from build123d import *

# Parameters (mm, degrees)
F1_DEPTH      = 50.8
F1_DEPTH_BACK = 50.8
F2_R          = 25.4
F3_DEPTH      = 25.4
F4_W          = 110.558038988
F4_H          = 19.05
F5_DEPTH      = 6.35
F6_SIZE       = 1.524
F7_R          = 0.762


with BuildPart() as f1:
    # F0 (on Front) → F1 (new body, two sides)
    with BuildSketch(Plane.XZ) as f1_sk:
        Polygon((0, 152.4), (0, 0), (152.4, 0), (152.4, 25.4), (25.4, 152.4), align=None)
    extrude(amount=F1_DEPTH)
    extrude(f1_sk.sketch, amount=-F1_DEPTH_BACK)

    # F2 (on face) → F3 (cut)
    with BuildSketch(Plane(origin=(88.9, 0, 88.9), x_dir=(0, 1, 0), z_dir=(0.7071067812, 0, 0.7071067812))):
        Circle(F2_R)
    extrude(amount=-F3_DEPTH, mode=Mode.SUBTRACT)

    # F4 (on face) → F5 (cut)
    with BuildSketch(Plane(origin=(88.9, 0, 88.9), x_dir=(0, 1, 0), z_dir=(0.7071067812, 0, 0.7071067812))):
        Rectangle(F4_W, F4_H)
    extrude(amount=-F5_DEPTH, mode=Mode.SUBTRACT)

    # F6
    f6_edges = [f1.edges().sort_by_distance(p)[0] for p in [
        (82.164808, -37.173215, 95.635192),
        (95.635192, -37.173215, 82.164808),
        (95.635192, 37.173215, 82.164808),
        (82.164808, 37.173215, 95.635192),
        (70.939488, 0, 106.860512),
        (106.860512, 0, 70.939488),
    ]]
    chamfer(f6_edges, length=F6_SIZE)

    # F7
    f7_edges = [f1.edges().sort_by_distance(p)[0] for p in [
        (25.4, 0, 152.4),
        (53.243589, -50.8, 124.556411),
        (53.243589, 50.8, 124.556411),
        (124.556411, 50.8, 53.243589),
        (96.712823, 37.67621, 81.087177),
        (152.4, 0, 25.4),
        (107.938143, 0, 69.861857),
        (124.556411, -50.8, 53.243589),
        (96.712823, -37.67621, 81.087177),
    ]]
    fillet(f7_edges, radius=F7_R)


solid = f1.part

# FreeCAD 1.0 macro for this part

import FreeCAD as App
import Part
import Sketcher

V = App.Vector
Q = App.Units.Quantity


def edges_at(feature, points):
    """Names of the edges that pass closest to the given points."""
    edges = feature.Shape.Edges
    near = lambda p: min(range(len(edges)), key=lambda i: edges[i].distToShape(Part.Vertex(*p))[0])
    return sorted({f"Edge{near(p) + 1}" for p in points})


def add_polygon(sketch, points):
    """Adds a closed chain of lines whose ends are joined by coincident constraints."""
    first, n = sketch.GeometryCount, len(points)
    for a, b in zip(points, points[1:] + points[:1]):
        sketch.addGeometry(Part.LineSegment(App.Vector(*a, 0), App.Vector(*b, 0)), False)
    for i in range(n):
        sketch.addConstraint(Sketcher.Constraint("Coincident", first + i, 2, first + (i + 1) % n, 1))

doc = App.newDocument("Part")
params = doc.addObject("Spreadsheet::Sheet", "Params")
for row, (alias, value) in enumerate([
    ("sketch1_width", "6 in"),
    ("sketch1_width2", "1 in"),
    ("pad1_length", "2 in"),
    ("pad1_length2", "2 in"),
    ("sketch2_diameter", "2 in"),
    ("pocket1_length", "1 in"),
    ("sketch3_height", "0.75 in"),
    ("pocket2_length", "0.25 in"),
    ("chamfer_size", "0.06 in"),
    ("fillet_radius", "0.03 in"),
], start=1):
    params.set(f"A{row}", alias)
    params.set(f"B{row}", "=" + value)
    params.setAlias(f"B{row}", alias)

body = doc.addObject("PartDesign::Body", "Body")

# Sketch on XZ plane
sketch1 = doc.addObject("Sketcher::SketchObject", "Sketch")
body.addObject(sketch1)
sketch1.AttachmentSupport = (doc.XZ_Plane, [""])
sketch1.MapMode = "FlatFace"
add_polygon(sketch1, [(0, 152.4), (0, 0), (152.4, 0), (152.4, 25.4), (25.4, 152.4)])  # lines 0-4
sketch1.addConstraint(Sketcher.Constraint("Vertical", 0))
sketch1.addConstraint(Sketcher.Constraint("Horizontal", 1))
sketch1.addConstraint(Sketcher.Constraint("Vertical", 2))
sketch1.addConstraint(Sketcher.Constraint("Horizontal", 4))
sketch1.addConstraint(Sketcher.Constraint("Coincident", 0, 2, -1, 1))
sketch1.addConstraint(Sketcher.Constraint("Equal", 1, 0))
sketch1.addConstraint(Sketcher.Constraint("Equal", 4, 2))
sketch1.addConstraint(Sketcher.Constraint("DistanceX", 1, 1, 1, 2, Q("6 in")))
sketch1.addConstraint(Sketcher.Constraint("DistanceX", 4, 2, 4, 1, Q("1 in")))
sketch1.setExpression("Constraints[12]", "Params.sketch1_width")
sketch1.setExpression("Constraints[13]", "Params.sketch1_width2")
pad1 = doc.addObject("PartDesign::Pad", "Pad")
body.addObject(pad1)
pad1.Profile = sketch1
pad1.Type = "TwoLengths"
pad1.setExpression("Length", "Params.pad1_length")
pad1.setExpression("Length2", "Params.pad1_length2")

# Sketch on an angled plane
sketch2 = doc.addObject("Sketcher::SketchObject", "Sketch001")
body.addObject(sketch2)
sketch2.Placement = App.Placement(V(88.9, 0, 88.9), App.Rotation(V(0, 1, 0), V(-0.707106781, 0, 0.707106781), V(0.707106781, 0, 0.707106781), "ZXY"))
sketch2.addGeometry(Part.Circle(V(0, 0, 0), V(0, 0, 1), 25.4), False)
sketch2.addConstraint(Sketcher.Constraint("Coincident", 0, 3, -1, 1))
sketch2.addConstraint(Sketcher.Constraint("Diameter", 0, Q("2 in")))
sketch2.setExpression("Constraints[1]", "Params.sketch2_diameter")
pocket1 = doc.addObject("PartDesign::Pocket", "Pocket")
body.addObject(pocket1)
pocket1.Profile = sketch2
pocket1.setExpression("Length", "Params.pocket1_length")

# Sketch on an angled plane
sketch3 = doc.addObject("Sketcher::SketchObject", "Sketch002")
body.addObject(sketch3)
sketch3.Placement = App.Placement(V(88.9, 0, 88.9), App.Rotation(V(0, 1, 0), V(-0.707106781, 0, 0.707106781), V(0.707106781, 0, 0.707106781), "ZXY"))
add_polygon(sketch3, [(-55.279019, 9.525), (-55.279019, -9.525), (55.279019, -9.525), (55.279019, 9.525)])  # lines 0-3
sketch3.addConstraint(Sketcher.Constraint("Vertical", 0))
sketch3.addConstraint(Sketcher.Constraint("Horizontal", 1))
sketch3.addConstraint(Sketcher.Constraint("Vertical", 2))
sketch3.addConstraint(Sketcher.Constraint("Horizontal", 3))
sketch3.addConstraint(Sketcher.Constraint("Symmetric", 0, 2, 2, 2, -1, 1))
sketch3.addConstraint(Sketcher.Constraint("DistanceY", 0, 2, 0, 1, Q("0.75 in")))
sketch3.addConstraint(Sketcher.Constraint("DistanceX", 1, 1, 1, 2, 110.558039))
sketch3.setExpression("Constraints[9]", "Params.sketch3_height")
pocket2 = doc.addObject("PartDesign::Pocket", "Pocket001")
body.addObject(pocket2)
pocket2.Profile = sketch3
pocket2.setExpression("Length", "Params.pocket2_length")
doc.recompute()

chamfer = doc.addObject("PartDesign::Chamfer", "Chamfer")
body.addObject(chamfer)
chamfer.Base = (pocket2, edges_at(pocket2, [
    (82.165, -37.173, 95.635),
    (95.635, -37.173, 82.165),
    (95.635, 37.173, 82.165),
    (82.165, 37.173, 95.635),
    (70.939, 0, 106.861),
    (106.861, 0, 70.939),
]))
chamfer.setExpression("Size", "Params.chamfer_size")
doc.recompute()

fillet = doc.addObject("PartDesign::Fillet", "Fillet")
body.addObject(fillet)
fillet.Base = (chamfer, edges_at(chamfer, [
    (25.4, 0, 152.4),
    (53.244, -50.8, 124.556),
    (53.244, 50.8, 124.556),
    (124.556, 50.8, 53.244),
    (96.713, 37.676, 81.087),
    (152.4, 0, 25.4),
    (107.938, 0, 69.862),
    (124.556, -50.8, 53.244),
    (96.713, -37.676, 81.087),
]))
fillet.setExpression("Radius", "Params.fillet_radius")

doc.recompute()
